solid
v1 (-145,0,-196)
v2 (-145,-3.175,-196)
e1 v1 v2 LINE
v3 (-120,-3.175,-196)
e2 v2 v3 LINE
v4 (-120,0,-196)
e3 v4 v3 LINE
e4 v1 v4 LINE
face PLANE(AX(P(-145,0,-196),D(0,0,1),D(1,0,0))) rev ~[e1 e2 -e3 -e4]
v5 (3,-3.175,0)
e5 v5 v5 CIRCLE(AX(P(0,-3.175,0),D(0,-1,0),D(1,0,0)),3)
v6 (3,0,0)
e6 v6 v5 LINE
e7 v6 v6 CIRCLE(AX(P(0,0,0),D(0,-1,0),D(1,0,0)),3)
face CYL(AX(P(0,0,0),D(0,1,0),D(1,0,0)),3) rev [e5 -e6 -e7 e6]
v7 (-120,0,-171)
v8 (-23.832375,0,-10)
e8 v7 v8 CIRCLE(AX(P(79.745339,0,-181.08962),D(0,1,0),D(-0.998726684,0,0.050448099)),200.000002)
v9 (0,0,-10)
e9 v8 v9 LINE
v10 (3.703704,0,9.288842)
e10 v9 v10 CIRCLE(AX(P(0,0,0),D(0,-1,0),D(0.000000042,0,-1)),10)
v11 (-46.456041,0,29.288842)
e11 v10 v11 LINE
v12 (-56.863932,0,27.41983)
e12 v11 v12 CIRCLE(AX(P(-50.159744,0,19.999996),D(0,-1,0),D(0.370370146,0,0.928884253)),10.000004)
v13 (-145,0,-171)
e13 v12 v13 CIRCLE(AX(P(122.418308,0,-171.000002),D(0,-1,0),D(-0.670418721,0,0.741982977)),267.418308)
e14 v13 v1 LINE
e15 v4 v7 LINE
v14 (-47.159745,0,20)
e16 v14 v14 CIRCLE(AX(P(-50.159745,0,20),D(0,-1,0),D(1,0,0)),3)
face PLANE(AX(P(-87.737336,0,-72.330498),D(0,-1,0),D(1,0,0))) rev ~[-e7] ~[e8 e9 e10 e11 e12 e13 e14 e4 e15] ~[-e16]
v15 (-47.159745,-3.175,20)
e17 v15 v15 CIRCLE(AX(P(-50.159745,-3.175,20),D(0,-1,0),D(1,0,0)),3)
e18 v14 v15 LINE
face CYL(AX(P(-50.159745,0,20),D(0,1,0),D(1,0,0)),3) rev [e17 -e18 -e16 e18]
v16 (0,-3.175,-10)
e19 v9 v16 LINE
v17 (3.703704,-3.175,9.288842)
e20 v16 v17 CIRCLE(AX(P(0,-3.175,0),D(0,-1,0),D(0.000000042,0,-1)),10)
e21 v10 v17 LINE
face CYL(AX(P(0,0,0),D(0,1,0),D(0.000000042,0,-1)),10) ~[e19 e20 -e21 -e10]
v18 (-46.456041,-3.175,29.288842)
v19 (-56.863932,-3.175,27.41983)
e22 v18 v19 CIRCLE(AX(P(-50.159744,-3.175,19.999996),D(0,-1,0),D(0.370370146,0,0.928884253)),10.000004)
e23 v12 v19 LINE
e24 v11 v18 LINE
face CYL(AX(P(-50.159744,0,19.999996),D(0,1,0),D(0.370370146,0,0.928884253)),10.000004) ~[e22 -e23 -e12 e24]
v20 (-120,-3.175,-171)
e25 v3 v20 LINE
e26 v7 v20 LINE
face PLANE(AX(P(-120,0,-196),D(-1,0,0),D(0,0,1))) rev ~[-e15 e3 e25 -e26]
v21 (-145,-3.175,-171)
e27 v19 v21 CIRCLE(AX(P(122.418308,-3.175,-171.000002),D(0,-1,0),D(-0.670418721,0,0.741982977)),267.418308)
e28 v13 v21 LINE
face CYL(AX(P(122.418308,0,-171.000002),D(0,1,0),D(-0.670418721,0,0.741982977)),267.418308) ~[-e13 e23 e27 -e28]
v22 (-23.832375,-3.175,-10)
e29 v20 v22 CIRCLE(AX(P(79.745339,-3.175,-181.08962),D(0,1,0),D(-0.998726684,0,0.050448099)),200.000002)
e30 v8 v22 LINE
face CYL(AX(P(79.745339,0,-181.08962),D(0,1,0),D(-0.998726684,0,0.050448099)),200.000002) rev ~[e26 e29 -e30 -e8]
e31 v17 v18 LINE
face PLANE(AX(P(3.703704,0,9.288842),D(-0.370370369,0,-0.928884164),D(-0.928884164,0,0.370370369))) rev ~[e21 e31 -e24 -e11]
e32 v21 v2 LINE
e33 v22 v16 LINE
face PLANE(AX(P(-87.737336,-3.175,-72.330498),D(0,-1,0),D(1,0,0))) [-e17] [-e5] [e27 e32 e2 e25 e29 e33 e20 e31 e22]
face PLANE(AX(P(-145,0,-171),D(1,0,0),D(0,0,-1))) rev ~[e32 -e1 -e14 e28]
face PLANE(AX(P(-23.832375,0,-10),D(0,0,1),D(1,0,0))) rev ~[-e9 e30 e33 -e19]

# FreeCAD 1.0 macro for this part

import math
import FreeCAD as App
import Part
import Sketcher

V = App.Vector
Q = App.Units.Quantity

doc = App.newDocument("Part")
body = doc.addObject("PartDesign::Body", "Body")

sketch1 = body.newObject("Sketcher::SketchObject", "Sketch")
sketch1.AttachmentSupport = (doc.getObject("XZ_Plane"), [""])
sketch1.MapMode = "FlatFace"
sketch1.addGeometry([
    Part.LineSegment(V(-23.8, -10, 0), V(0, -10, 0)),
    Part.ArcOfCircle(Part.Circle(V(0, 0, 0), V(0, 0, 1), 10), math.radians(-90), math.radians(68)),
    Part.LineSegment(V(3.7, 9.3, 0), V(-46.5, 29.3, 0)),
    Part.ArcOfCircle(Part.Circle(V(-50.2, 20, 0), V(0, 0, 1), 10), math.radians(68), math.radians(132)),
    Part.ArcOfCircle(Part.Circle(V(122.4, -171, 0), V(0, 0, 1), 267.4), math.radians(132), math.radians(180)),
    Part.LineSegment(V(-145, -171, 0), V(-145, -196, 0)),
    Part.LineSegment(V(-145, -196, 0), V(-120, -196, 0)),
    Part.LineSegment(V(-120, -196, 0), V(-120, -171, 0)),
    Part.ArcOfCircle(Part.Circle(V(79.7, -181.1, 0), V(0, 0, 1), 200), math.radians(121), math.radians(177)),
    Part.Circle(V(0, 0, 0), V(0, 0, 1), 3),
    Part.Circle(V(-50.2, 20, 0), V(0, 0, 1), 3),
], False)
sketch1.addConstraint([
    Sketcher.Constraint("Tangent", 0, 2, 1, 1),
    Sketcher.Constraint("Tangent", 1, 2, 2, 1),
    Sketcher.Constraint("Tangent", 2, 2, 3, 1),
    Sketcher.Constraint("Tangent", 3, 2, 4, 1),
    Sketcher.Constraint("Tangent", 4, 2, 5, 1),
    Sketcher.Constraint("Coincident", 5, 2, 6, 1),
    Sketcher.Constraint("Coincident", 6, 2, 7, 1),
    Sketcher.Constraint("Coincident", 7, 2, 8, 2),
    Sketcher.Constraint("Coincident", 8, 1, 0, 1),
    Sketcher.Constraint("Horizontal", 0),
    Sketcher.Constraint("Vertical", 5),
    Sketcher.Constraint("Horizontal", 6),
    Sketcher.Constraint("Vertical", 7),
    Sketcher.Constraint("Coincident", 1, 3, -1, 1),
    Sketcher.Constraint("Coincident", 9, 3, -1, 1),
    Sketcher.Constraint("Coincident", 10, 3, 3, 3),
    Sketcher.Constraint("Equal", 9, 10),
    Sketcher.Constraint("Horizontal", 4, 2, 7, 2),
    Sketcher.Constraint("Equal", 6, 5),
    Sketcher.Constraint("Diameter", 9, Q("6 mm")),
    Sketcher.Constraint("Radius", 1, Q("10 mm")),
    Sketcher.Constraint("DistanceX", 6, 1, 6, 2, Q("25 mm")),
    Sketcher.Constraint("Distance", 2, Q("54 mm")),
    Sketcher.Constraint("DistanceY", -1, 1, 10, 3, Q("20 mm")),
    Sketcher.Constraint("DistanceX", 4, 2, -1, 1, Q("145 mm")),
    Sketcher.Constraint("DistanceY", 5, 2, -1, 1, Q("196 mm")),
    Sketcher.Constraint("DistanceY", 1, 2, 2, 2, Q("20 mm")),
    Sketcher.Constraint("Radius", 8, Q("200.000002 mm")),
    Sketcher.Constraint("DistanceX", 0, 1, 0, 2, Q("23.832375 mm")),
])
pad1 = body.newObject("PartDesign::Pad", "Pad")
pad1.Profile = sketch1
pad1.Length = 3.175

doc.recompute()
